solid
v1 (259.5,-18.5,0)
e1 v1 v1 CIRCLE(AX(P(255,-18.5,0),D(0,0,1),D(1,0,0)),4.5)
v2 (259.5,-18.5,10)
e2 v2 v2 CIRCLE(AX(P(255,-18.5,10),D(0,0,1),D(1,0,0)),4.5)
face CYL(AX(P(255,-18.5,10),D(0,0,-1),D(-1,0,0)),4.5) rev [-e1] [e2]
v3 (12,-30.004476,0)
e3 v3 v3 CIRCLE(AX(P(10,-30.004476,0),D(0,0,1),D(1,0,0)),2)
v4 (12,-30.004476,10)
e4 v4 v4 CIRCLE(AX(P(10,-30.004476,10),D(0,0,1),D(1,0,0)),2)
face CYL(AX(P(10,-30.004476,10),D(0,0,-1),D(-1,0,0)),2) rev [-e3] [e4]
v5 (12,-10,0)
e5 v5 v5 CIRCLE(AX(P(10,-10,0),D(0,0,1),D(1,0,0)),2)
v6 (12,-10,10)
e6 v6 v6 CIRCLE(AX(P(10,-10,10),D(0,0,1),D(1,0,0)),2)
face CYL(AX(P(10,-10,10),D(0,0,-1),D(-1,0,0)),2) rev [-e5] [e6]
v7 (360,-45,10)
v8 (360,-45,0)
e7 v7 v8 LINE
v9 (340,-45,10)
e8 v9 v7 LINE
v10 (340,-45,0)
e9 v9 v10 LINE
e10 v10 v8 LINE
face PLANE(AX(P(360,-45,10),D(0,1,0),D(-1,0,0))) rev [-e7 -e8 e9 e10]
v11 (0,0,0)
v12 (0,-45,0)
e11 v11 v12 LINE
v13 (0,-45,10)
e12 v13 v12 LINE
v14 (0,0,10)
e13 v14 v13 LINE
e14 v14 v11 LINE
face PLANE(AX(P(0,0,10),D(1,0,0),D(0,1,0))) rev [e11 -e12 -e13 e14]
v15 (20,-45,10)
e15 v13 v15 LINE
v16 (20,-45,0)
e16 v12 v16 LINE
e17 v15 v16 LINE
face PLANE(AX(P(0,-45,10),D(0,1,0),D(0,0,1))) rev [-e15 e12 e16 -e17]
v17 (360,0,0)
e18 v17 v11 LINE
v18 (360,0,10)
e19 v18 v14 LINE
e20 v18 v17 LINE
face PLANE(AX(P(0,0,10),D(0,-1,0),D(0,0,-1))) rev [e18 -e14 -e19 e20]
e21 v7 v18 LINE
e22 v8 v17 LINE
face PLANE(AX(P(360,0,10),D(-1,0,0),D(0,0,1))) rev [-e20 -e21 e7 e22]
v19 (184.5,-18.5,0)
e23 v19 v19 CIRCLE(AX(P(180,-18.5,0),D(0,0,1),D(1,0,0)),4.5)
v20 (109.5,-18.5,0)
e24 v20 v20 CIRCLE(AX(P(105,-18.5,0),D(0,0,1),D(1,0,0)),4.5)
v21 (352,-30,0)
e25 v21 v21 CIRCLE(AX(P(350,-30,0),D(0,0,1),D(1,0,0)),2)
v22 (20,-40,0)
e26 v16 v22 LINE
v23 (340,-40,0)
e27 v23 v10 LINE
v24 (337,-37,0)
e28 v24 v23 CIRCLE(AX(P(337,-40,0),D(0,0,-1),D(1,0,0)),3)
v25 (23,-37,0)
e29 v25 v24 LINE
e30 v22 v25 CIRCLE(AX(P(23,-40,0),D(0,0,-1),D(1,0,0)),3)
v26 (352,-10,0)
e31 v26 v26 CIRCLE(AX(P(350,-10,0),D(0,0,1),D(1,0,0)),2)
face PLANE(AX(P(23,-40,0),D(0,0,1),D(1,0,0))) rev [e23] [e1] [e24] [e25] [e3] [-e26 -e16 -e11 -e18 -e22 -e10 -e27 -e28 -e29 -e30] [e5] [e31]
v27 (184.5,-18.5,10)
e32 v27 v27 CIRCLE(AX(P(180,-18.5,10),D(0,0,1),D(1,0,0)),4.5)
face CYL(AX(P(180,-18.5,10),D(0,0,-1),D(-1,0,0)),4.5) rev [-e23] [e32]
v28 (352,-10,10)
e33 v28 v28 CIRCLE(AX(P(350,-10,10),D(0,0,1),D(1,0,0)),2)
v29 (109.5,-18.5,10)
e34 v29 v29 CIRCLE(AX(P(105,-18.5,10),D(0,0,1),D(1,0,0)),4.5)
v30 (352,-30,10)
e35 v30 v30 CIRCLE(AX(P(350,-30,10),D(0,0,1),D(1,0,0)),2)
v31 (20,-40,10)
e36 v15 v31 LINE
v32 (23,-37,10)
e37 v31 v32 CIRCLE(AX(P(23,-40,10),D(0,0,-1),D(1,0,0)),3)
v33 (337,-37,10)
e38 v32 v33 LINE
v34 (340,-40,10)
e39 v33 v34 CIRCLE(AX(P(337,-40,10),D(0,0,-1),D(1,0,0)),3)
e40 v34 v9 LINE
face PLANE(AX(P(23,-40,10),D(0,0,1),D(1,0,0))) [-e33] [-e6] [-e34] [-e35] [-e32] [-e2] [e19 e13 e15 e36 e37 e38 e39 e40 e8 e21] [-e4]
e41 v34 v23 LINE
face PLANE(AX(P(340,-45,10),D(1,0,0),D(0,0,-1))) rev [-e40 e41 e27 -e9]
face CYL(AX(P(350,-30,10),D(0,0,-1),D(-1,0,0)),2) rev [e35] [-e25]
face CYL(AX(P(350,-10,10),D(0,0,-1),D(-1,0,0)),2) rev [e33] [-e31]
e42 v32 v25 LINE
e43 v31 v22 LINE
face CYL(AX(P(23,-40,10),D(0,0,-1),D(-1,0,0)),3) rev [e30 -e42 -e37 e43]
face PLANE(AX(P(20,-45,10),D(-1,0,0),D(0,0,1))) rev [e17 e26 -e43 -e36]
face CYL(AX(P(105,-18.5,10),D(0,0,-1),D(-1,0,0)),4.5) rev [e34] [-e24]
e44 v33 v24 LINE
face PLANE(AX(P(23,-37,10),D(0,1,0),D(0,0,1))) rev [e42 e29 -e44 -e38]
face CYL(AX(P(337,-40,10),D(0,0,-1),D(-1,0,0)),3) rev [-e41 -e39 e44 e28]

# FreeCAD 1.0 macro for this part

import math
import FreeCAD as App
import Part
import Sketcher

V = App.Vector
Q = App.Units.Quantity

doc = App.newDocument("Part")
body = doc.addObject("PartDesign::Body", "Body")

sketch1 = body.newObject("Sketcher::SketchObject", "Sketch")
sketch1.AttachmentSupport = (doc.getObject("XY_Plane"), [""])
sketch1.MapMode = "FlatFace"
sketch1.addGeometry(Part.LineSegment(V(360, 0, 0), V(0, 0, 0)), False)
sketch1.addGeometry(Part.LineSegment(V(0, 0, 0), V(0, -45, 0)), False)
sketch1.addGeometry(Part.LineSegment(V(0, -45, 0), V(20, -45, 0)), False)
sketch1.addGeometry(Part.LineSegment(V(20, -45, 0), V(20, -40, 0)), False)
sketch1.addGeometry(Part.ArcOfCircle(Part.Circle(V(23, -40, 0), V(0, 0, 1), 3), math.radians(90), math.radians(180)), False)
sketch1.addGeometry(Part.LineSegment(V(23, -37, 0), V(337, -37, 0)), False)
sketch1.addGeometry(Part.ArcOfCircle(Part.Circle(V(337, -40, 0), V(0, 0, 1), 3), math.radians(0), math.radians(90)), False)
sketch1.addGeometry(Part.LineSegment(V(340, -40, 0), V(340, -45, 0)), False)
sketch1.addGeometry(Part.LineSegment(V(340, -45, 0), V(360, -45, 0)), False)
sketch1.addGeometry(Part.LineSegment(V(360, -45, 0), V(360, 0, 0)), False)
sketch1.addGeometry(Part.Circle(V(350, -30, 0), V(0, 0, 1), 2), False)
sketch1.addGeometry(Part.Circle(V(10, -30, 0), V(0, 0, 1), 2), False)
sketch1.addGeometry(Part.Circle(V(255, -18.5, 0), V(0, 0, 1), 4.5), False)
sketch1.addGeometry(Part.Circle(V(350, -10, 0), V(0, 0, 1), 2), False)
sketch1.addGeometry(Part.Circle(V(180, -18.5, 0), V(0, 0, 1), 4.5), False)
sketch1.addGeometry(Part.Circle(V(105, -18.5, 0), V(0, 0, 1), 4.5), False)
sketch1.addGeometry(Part.Circle(V(10, -10, 0), V(0, 0, 1), 2), False)
sketch1.addConstraint(Sketcher.Constraint("Coincident", 0, 2, 1, 1))
sketch1.addConstraint(Sketcher.Constraint("Coincident", 1, 2, 2, 1))
sketch1.addConstraint(Sketcher.Constraint("Coincident", 2, 2, 3, 1))
sketch1.addConstraint(Sketcher.Constraint("Tangent", 3, 2, 4, 2))
sketch1.addConstraint(Sketcher.Constraint("Tangent", 4, 1, 5, 1))
sketch1.addConstraint(Sketcher.Constraint("Tangent", 5, 2, 6, 2))
sketch1.addConstraint(Sketcher.Constraint("Tangent", 6, 1, 7, 1))
sketch1.addConstraint(Sketcher.Constraint("Coincident", 7, 2, 8, 1))
sketch1.addConstraint(Sketcher.Constraint("Coincident", 8, 2, 9, 1))
sketch1.addConstraint(Sketcher.Constraint("Coincident", 9, 2, 0, 1))
sketch1.addConstraint(Sketcher.Constraint("Horizontal", 0))
sketch1.addConstraint(Sketcher.Constraint("Vertical", 1))
sketch1.addConstraint(Sketcher.Constraint("Horizontal", 2))
sketch1.addConstraint(Sketcher.Constraint("Vertical", 3))
sketch1.addConstraint(Sketcher.Constraint("Horizontal", 5))
sketch1.addConstraint(Sketcher.Constraint("Vertical", 7))
sketch1.addConstraint(Sketcher.Constraint("Horizontal", 8))
sketch1.addConstraint(Sketcher.Constraint("Vertical", 9))
sketch1.addConstraint(Sketcher.Constraint("Coincident", 0, 2, -1, 1))
sketch1.addConstraint(Sketcher.Constraint("Equal", 4, 6))
sketch1.addConstraint(Sketcher.Constraint("Equal", 10, 11))
sketch1.addConstraint(Sketcher.Constraint("Equal", 11, 13))
sketch1.addConstraint(Sketcher.Constraint("Equal", 12, 14))
sketch1.addConstraint(Sketcher.Constraint("Equal", 14, 15))
sketch1.addConstraint(Sketcher.Constraint("Equal", 13, 16))
sketch1.addConstraint(Sketcher.Constraint("Horizontal", 12, 3, 14, 3))
sketch1.addConstraint(Sketcher.Constraint("Horizontal", 14, 3, 15, 3))
sketch1.addConstraint(Sketcher.Constraint("Horizontal", 13, 3, 16, 3))
sketch1.addConstraint(Sketcher.Constraint("Horizontal", 2, 2, 7, 2))
sketch1.addConstraint(Sketcher.Constraint("Vertical", 10, 3, 13, 3))
sketch1.addConstraint(Sketcher.Constraint("Vertical", 11, 3, 16, 3))
sketch1.addConstraint(Sketcher.Constraint("Equal", 2, 8))
sketch1.addConstraint(Sketcher.Constraint("Diameter", 10, Q("4 mm")))
sketch1.addConstraint(Sketcher.Constraint("Diameter", 12, Q("9 mm")))
sketch1.addConstraint(Sketcher.Constraint("Radius", 4, Q("3 mm")))
sketch1.addConstraint(Sketcher.Constraint("DistanceX", 0, 2, 0, 1, Q("360 mm")))
sketch1.addConstraint(Sketcher.Constraint("DistanceX", 2, 1, 2, 2, Q("20 mm")))
sketch1.addConstraint(Sketcher.Constraint("DistanceY", 1, 2, 1, 1, Q("45 mm")))
sketch1.addConstraint(Sketcher.Constraint("DistanceY", 3, 1, 3, 2, Q("5 mm")))
sketch1.addConstraint(Sketcher.Constraint("DistanceX", -1, 1, 10, 3, Q("350 mm")))
sketch1.addConstraint(Sketcher.Constraint("DistanceY", 10, 3, -1, 1, Q("30 mm")))
sketch1.addConstraint(Sketcher.Constraint("DistanceX", -1, 1, 11, 3, Q("10 mm")))
sketch1.addConstraint(Sketcher.Constraint("DistanceX", -1, 1, 12, 3, Q("255 mm")))
sketch1.addConstraint(Sketcher.Constraint("DistanceY", 13, 3, -1, 1, Q("10 mm")))
sketch1.addConstraint(Sketcher.Constraint("DistanceX", -1, 1, 14, 3, Q("180 mm")))
sketch1.addConstraint(Sketcher.Constraint("DistanceX", -1, 1, 15, 3, Q("105 mm")))
sketch1.addConstraint(Sketcher.Constraint("DistanceY", 12, 3, -1, 1, Q("18.5 mm")))
sketch1.addConstraint(Sketcher.Constraint("DistanceY", 11, 3, -1, 1, Q("30.004476 mm")))
pad1 = body.newObject("PartDesign::Pad", "Pad")
pad1.Profile = sketch1
pad1.Length = 10

doc.recompute()
